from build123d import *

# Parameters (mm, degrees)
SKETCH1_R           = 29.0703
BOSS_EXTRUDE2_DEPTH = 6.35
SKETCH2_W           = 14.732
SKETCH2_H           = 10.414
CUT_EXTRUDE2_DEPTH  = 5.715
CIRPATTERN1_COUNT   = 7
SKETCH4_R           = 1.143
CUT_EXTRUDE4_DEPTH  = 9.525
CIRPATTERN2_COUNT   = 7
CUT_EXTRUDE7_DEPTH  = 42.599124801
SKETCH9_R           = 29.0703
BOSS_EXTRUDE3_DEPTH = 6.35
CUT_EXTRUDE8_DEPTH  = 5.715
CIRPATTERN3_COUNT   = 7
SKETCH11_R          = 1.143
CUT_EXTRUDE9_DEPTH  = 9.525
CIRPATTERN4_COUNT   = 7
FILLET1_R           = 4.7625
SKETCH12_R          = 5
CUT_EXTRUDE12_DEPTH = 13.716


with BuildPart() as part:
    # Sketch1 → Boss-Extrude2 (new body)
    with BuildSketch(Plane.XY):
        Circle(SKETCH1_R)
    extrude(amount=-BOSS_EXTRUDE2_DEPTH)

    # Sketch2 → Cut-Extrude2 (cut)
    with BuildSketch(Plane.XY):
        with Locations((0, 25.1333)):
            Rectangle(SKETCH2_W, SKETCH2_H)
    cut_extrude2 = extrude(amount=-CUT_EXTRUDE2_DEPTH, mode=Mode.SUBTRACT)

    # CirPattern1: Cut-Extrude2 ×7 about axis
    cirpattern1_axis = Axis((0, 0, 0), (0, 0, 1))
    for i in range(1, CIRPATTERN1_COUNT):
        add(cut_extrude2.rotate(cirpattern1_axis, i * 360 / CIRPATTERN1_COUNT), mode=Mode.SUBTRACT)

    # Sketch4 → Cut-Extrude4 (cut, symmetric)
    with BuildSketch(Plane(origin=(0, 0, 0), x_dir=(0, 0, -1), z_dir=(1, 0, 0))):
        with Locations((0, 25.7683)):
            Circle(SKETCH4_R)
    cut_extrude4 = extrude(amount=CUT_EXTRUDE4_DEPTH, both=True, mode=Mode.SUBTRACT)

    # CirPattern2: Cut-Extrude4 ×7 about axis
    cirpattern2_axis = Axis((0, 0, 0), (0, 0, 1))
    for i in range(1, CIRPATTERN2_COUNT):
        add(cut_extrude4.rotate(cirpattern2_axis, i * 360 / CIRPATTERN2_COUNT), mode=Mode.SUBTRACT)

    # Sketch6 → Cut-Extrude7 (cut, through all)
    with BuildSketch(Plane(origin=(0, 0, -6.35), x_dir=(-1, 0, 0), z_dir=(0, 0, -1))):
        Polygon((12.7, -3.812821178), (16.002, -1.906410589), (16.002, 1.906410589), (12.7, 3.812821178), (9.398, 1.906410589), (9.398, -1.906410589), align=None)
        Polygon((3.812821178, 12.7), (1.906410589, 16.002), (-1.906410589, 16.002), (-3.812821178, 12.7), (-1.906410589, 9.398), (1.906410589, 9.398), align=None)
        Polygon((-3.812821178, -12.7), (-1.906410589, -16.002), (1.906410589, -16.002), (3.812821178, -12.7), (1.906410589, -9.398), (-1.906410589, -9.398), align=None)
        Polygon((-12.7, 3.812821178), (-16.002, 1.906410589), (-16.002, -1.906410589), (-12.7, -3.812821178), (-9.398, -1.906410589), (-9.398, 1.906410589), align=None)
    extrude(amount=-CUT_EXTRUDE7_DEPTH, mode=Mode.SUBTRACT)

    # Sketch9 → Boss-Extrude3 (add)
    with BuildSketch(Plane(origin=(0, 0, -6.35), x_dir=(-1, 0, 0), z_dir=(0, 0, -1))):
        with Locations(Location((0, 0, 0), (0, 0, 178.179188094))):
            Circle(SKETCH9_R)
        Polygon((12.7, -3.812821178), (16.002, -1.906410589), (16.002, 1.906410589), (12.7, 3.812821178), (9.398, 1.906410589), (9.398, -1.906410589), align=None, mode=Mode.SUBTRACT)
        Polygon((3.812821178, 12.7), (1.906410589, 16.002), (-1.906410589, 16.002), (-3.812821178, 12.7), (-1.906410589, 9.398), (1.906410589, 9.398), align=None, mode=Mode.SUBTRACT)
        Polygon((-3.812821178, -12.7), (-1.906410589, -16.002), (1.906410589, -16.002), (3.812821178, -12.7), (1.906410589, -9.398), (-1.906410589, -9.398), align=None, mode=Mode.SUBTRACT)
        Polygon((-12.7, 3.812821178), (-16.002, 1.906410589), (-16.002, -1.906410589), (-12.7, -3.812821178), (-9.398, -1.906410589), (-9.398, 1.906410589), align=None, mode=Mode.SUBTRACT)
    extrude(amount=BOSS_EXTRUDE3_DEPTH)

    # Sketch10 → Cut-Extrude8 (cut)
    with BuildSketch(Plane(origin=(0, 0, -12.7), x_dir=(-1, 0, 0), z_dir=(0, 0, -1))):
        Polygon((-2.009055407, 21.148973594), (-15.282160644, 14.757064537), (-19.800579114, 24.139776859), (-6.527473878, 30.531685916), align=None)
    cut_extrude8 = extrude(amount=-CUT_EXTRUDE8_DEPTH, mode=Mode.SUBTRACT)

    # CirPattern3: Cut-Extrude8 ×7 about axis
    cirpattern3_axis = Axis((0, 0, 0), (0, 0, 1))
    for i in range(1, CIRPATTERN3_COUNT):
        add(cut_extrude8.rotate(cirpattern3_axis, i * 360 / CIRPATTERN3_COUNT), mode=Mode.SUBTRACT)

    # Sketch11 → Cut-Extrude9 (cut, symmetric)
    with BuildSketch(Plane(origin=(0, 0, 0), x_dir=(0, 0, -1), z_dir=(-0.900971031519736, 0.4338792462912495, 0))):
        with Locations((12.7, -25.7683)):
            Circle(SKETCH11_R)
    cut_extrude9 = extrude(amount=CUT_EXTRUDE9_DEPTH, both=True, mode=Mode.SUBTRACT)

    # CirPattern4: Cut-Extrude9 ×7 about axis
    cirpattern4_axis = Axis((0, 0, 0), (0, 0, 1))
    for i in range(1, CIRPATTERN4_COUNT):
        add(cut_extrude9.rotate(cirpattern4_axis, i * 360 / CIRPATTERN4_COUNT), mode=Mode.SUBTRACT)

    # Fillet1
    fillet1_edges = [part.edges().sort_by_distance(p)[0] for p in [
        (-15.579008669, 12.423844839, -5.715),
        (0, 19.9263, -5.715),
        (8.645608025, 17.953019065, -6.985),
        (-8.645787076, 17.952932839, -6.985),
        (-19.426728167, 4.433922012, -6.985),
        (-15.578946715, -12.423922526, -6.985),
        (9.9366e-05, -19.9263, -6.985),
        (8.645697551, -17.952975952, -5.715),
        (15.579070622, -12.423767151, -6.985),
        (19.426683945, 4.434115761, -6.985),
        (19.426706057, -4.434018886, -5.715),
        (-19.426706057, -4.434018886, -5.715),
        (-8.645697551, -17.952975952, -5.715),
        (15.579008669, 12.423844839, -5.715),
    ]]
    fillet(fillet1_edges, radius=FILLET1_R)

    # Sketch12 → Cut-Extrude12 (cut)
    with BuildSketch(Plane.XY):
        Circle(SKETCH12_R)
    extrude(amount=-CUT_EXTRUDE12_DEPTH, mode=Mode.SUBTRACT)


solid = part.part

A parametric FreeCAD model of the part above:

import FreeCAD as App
import Part
import Sketcher
from FreeCAD import Vector
Q = App.Units.Quantity


def edges_at(feature, points):
    """Names of the edges that pass closest to the given points."""
    edges = feature.Shape.Edges
    near = lambda p: min(range(len(edges)), key=lambda i: edges[i].distToShape(Part.Vertex(*p))[0])
    return sorted({f"Edge{near(p) + 1}" for p in points})


def add_polygon(sketch, points):
    """Adds a closed chain of lines whose ends are joined by coincident constraints."""
    first, n = sketch.GeometryCount, len(points)
    for a, b in zip(points, points[1:] + points[:1]):
        sketch.addGeometry(Part.LineSegment(App.Vector(*a, 0), App.Vector(*b, 0)), False)
    for i in range(n):
        sketch.addConstraint(Sketcher.Constraint("Coincident", first + i, 2, first + (i + 1) % n, 1))

doc = App.newDocument("Part")
body = doc.addObject("PartDesign::Body", "Body")

# Sketch on XY plane
sketch1 = body.newObject("Sketcher::SketchObject", "Sketch")
sketch1.AttachmentSupport = (doc.getObject("XY_Plane"), [""])
sketch1.MapMode = "FlatFace"
sketch1.addGeometry(Part.Circle(Vector(0, 0, 0), Vector(0, 0, 1), 29), False)
sketch1.addConstraint([
    Sketcher.Constraint("Coincident", 0, 3, -1, 1),
    Sketcher.Constraint("Diameter", 0, Q("2.289 in")),
])
pad1 = body.newObject("PartDesign::Pad", "Pad")
pad1.Profile = sketch1
pad1.Length = Q("0.25 in")
pad1.Reversed = True

# Sketch on XY plane
sketch2 = body.newObject("Sketcher::SketchObject", "Sketch001")
sketch2.AttachmentSupport = (doc.getObject("XY_Plane"), [""])
sketch2.MapMode = "FlatFace"
add_polygon(sketch2, [(-7, 30), (-7, 20), (7, 20), (7, 30)])  # lines 0-3
sketch2.addConstraint([
    Sketcher.Constraint("Vertical", 0),
    Sketcher.Constraint("Horizontal", 1),
    Sketcher.Constraint("Vertical", 2),
    Sketcher.Constraint("Horizontal", 3),
    Sketcher.Constraint("DistanceX", 1, 1, 1, 2, Q("0.58 in")),
    Sketcher.Constraint("DistanceY", 0, 2, 0, 1, Q("0.41 in")),
    Sketcher.Constraint("DistanceX", 0, 2, -1, 1, Q("0.29 in")),
    Sketcher.Constraint("DistanceY", -1, 1, 0, 2, Q("0.7845 in")),
])
pocket1 = body.newObject("PartDesign::Pocket", "Pocket")
pocket1.Profile = sketch2
pocket1.Length = Q("0.225 in")
doc.recompute()

polarpattern = body.newObject("PartDesign::PolarPattern", "PolarPattern")
polarpattern.Originals = [pocket1]
polarpattern.Axis = (doc.getObject("Z_Axis"), [""])
polarpattern.Angle = 360
polarpattern.Occurrences = 7
body.Tip = polarpattern

# Sketch on YZ plane
sketch3 = body.newObject("Sketcher::SketchObject", "Sketch002")
sketch3.AttachmentSupport = (doc.getObject("YZ_Plane"), [""])
sketch3.MapMode = "FlatFace"
sketch3.addGeometry(Part.Circle(Vector(25.8, 0, 0), Vector(0, 0, 1), 1.1), False)
sketch3.addConstraint([
    Sketcher.Constraint("PointOnObject", 0, 3, -1),
    Sketcher.Constraint("Diameter", 0, Q("0.09 in")),
    Sketcher.Constraint("DistanceX", -1, 1, 0, 3, Q("1.0145 in")),
])
pocket2 = body.newObject("PartDesign::Pocket", "Pocket001")
pocket2.Profile = sketch3
pocket2.Length = Q("0.75 in")
pocket2.Midplane = True
doc.recompute()

polarpattern2 = body.newObject("PartDesign::PolarPattern", "PolarPattern001")
polarpattern2.Originals = [pocket2]
polarpattern2.Axis = (doc.getObject("Z_Axis"), [""])
polarpattern2.Angle = 360
polarpattern2.Occurrences = 7
body.Tip = polarpattern2

# Sketch on XY plane
sketch4 = body.newObject("Sketcher::SketchObject", "Sketch003")
sketch4.AttachmentSupport = (doc.getObject("XY_Plane"), [""])
sketch4.MapMode = "FlatFace"
sketch4.AttachmentOffset = App.Placement(Vector(0, 0, -0.25 * 25.4), App.Rotation())
add_polygon(sketch4, [(-12.7, -3.8), (-16, -1.9), (-16, 1.9), (-12.7, 3.8), (-9.4, 1.9), (-9.4, -1.9)])  # lines 0-5
add_polygon(sketch4, [(-3.8, 12.7), (-1.9, 16), (1.9, 16), (3.8, 12.7), (1.9, 9.4), (-1.9, 9.4)])  # lines 6-11
add_polygon(sketch4, [(3.8, -12.7), (1.9, -16), (-1.9, -16), (-3.8, -12.7), (-1.9, -9.4), (1.9, -9.4)])  # lines 12-17
add_polygon(sketch4, [(12.7, 3.8), (16, 1.9), (16, -1.9), (12.7, -3.8), (9.4, -1.9), (9.4, 1.9)])  # lines 18-23
sketch4.addConstraint([
    Sketcher.Constraint("Vertical", 1),
    Sketcher.Constraint("Vertical", 4),
    Sketcher.Constraint("Horizontal", 7),
    Sketcher.Constraint("Horizontal", 10),
    Sketcher.Constraint("Horizontal", 13),
    Sketcher.Constraint("Horizontal", 16),
    Sketcher.Constraint("Vertical", 19),
    Sketcher.Constraint("Vertical", 22),
    Sketcher.Constraint("Symmetric", 6, 2, 12, 2, -1, 1),
    Sketcher.Constraint("Symmetric", 8, 2, 14, 2, -1, 1),
    Sketcher.Constraint("Symmetric", 9, 2, 15, 2, -1, 1),
    Sketcher.Constraint("Symmetric", 11, 2, 17, 2, -1, 1),
    Sketcher.Constraint("Symmetric", 0, 2, 18, 2, -1, 1),
    Sketcher.Constraint("Symmetric", 2, 2, 20, 2, -1, 1),
    Sketcher.Constraint("Symmetric", 3, 2, 21, 2, -1, 1),
    Sketcher.Constraint("Symmetric", 5, 2, 23, 2, -1, 1),
    Sketcher.Constraint("Symmetric", 8, 2, 11, 2, -2),
    Sketcher.Constraint("Symmetric", 5, 2, 20, 2, -2),
    Sketcher.Constraint("Parallel", 0, 3),
    Sketcher.Constraint("Parallel", 2, 5),
    Sketcher.Constraint("Perpendicular", 3, 6),
    Sketcher.Constraint("Perpendicular", 5, 8),
    Sketcher.Constraint("Parallel", 6, 9),
    Sketcher.Constraint("Parallel", 8, 11),
    Sketcher.Constraint("Parallel", 11, 14),
    Sketcher.Constraint("Parallel", 14, 17),
    Sketcher.Constraint("Perpendicular", 17, 20),
    Sketcher.Constraint("Parallel", 20, 23),
    Sketcher.Constraint("Horizontal", 1, 2, 3, 2),
    Sketcher.Constraint("Horizontal", 0, 2, 4, 2),
    Sketcher.Constraint("Vertical", 7, 2, 9, 2),
    Sketcher.Constraint("Equal", 16, 1),
    Sketcher.Constraint("Equal", 5, 6),
    Sketcher.Constraint("Angle", 0, Q("150 deg")),
    Sketcher.Constraint("DistanceX", 2, 2, -1, 1, Q("0.5 in")),
    Sketcher.Constraint("DistanceY", -1, 1, 8, 2, Q("0.5 in")),
    Sketcher.Constraint("DistanceX", 0, 2, -1, 1, Q("0.63 in")),
    Sketcher.Constraint("DistanceX", 7, 1, 7, 2, 3.812821),
])
pocket3 = body.newObject("PartDesign::Pocket", "Pocket002")
pocket3.Profile = sketch4
pocket3.Type = "ThroughAll"
pocket3.Reversed = True

# Sketch on XY plane
sketch5 = body.newObject("Sketcher::SketchObject", "Sketch004")
sketch5.AttachmentSupport = (doc.getObject("XY_Plane"), [""])
sketch5.MapMode = "FlatFace"
sketch5.AttachmentOffset = App.Placement(Vector(0, 0, -0.25 * 25.4), App.Rotation())
sketch5.addGeometry(Part.Circle(Vector(0, 0, 0), Vector(0, 0, 1), 29.1), False)  # 0
add_polygon(sketch5, [(-16, -1.9), (-12.7, -3.8), (-9.4, -1.9), (-9.4, 1.9), (-12.7, 3.8), (-16, 1.9)])  # lines 1-6
add_polygon(sketch5, [(-1.9, 16), (-3.8, 12.7), (-1.9, 9.4), (1.9, 9.4), (3.8, 12.7), (1.9, 16)])  # lines 7-12
add_polygon(sketch5, [(1.9, -16), (3.8, -12.7), (1.9, -9.4), (-1.9, -9.4), (-3.8, -12.7), (-1.9, -16)])  # lines 13-18
add_polygon(sketch5, [(16, 1.9), (12.7, 3.8), (9.4, 1.9), (9.4, -1.9), (12.7, -3.8), (16, -1.9)])  # lines 19-24
sketch5.addConstraint([
    Sketcher.Constraint("Vertical", 3),
    Sketcher.Constraint("Vertical", 6),
    Sketcher.Constraint("Horizontal", 9),
    Sketcher.Constraint("Horizontal", 12),
    Sketcher.Constraint("Horizontal", 15),
    Sketcher.Constraint("Horizontal", 18),
    Sketcher.Constraint("Vertical", 21),
    Sketcher.Constraint("Vertical", 24),
    Sketcher.Constraint("Coincident", 0, 3, -1, 1),
    Sketcher.Constraint("Symmetric", 7, 2, 13, 2, -1, 1),
    Sketcher.Constraint("Symmetric", 8, 2, 14, 2, -1, 1),
    Sketcher.Constraint("Symmetric", 10, 2, 16, 2, -1, 1),
    Sketcher.Constraint("Symmetric", 11, 2, 17, 2, -1, 1),
    Sketcher.Constraint("Symmetric", 1, 2, 19, 2, -1, 1),
    Sketcher.Constraint("Symmetric", 2, 2, 20, 2, -1, 1),
    Sketcher.Constraint("Symmetric", 4, 2, 22, 2, -1, 1),
    Sketcher.Constraint("Symmetric", 5, 2, 23, 2, -1, 1),
    Sketcher.Constraint("Symmetric", 7, 2, 10, 2, -2),
    Sketcher.Constraint("Symmetric", 4, 2, 19, 2, -2),
    Sketcher.Constraint("Parallel", 1, 4),
    Sketcher.Constraint("Parallel", 2, 5),
    Sketcher.Constraint("Perpendicular", 4, 7),
    Sketcher.Constraint("Perpendicular", 5, 8),
    Sketcher.Constraint("Parallel", 7, 10),
    Sketcher.Constraint("Parallel", 8, 11),
    Sketcher.Constraint("Parallel", 10, 13),
    Sketcher.Constraint("Parallel", 13, 16),
    Sketcher.Constraint("Perpendicular", 16, 19),
    Sketcher.Constraint("Parallel", 19, 22),
    Sketcher.Constraint("Horizontal", 3, 2, 5, 2),
    Sketcher.Constraint("Horizontal", 2, 2, 6, 2),
    Sketcher.Constraint("Vertical", 9, 2, 11, 2),
    Sketcher.Constraint("Equal", 18, 3),
    Sketcher.Constraint("Equal", 5, 7),
    Sketcher.Constraint("Diameter", 0, Q("2.289 in")),
    Sketcher.Constraint("Angle", 1, Q("-30 deg")),
    Sketcher.Constraint("DistanceX", 1, 2, -1, 1, Q("0.5 in")),
    Sketcher.Constraint("DistanceY", -1, 1, 7, 2, Q("0.5 in")),
    Sketcher.Constraint("DistanceX", 2, 2, -1, 1, Q("0.37 in")),
    Sketcher.Constraint("DistanceX", 9, 1, 9, 2, 3.812821),
])
pad2 = body.newObject("PartDesign::Pad", "Pad001")
pad2.Profile = sketch5
pad2.Length = Q("0.25 in")
pad2.Reversed = True

# Sketch on XY plane
sketch6 = body.newObject("Sketcher::SketchObject", "Sketch005")
sketch6.AttachmentSupport = (doc.getObject("XY_Plane"), [""])
sketch6.MapMode = "FlatFace"
sketch6.AttachmentOffset = App.Placement(Vector(0, 0, -0.5 * 25.4), App.Rotation())
add_polygon(sketch6, [(15, 15), (2, 21), (7, 31), (20, 24)])  # lines 0-3
sketch6.addConstraint([
    Sketcher.Constraint("Perpendicular", 0, 1),
    Sketcher.Constraint("Perpendicular", 1, 2),
    Sketcher.Constraint("Perpendicular", 2, 3),
    Sketcher.Constraint("Distance", 0, Q("0.58 in")),
    Sketcher.Constraint("Distance", 1, Q("0.41 in")),
    Sketcher.Constraint("DistanceX", -1, 1, 2, 2, 19.800579),
    Sketcher.Constraint("DistanceX", -1, 1, 3, 2, 15.282161),
    Sketcher.Constraint("DistanceY", -1, 1, 0, 2, 21.148974),
])
pocket4 = body.newObject("PartDesign::Pocket", "Pocket003")
pocket4.Profile = sketch6
pocket4.Length = Q("0.225 in")
pocket4.Reversed = True
doc.recompute()

polarpattern3 = body.newObject("PartDesign::PolarPattern", "PolarPattern002")
polarpattern3.Originals = [pocket4]
polarpattern3.Axis = (doc.getObject("Z_Axis"), [""])
polarpattern3.Angle = 360
polarpattern3.Occurrences = 7
body.Tip = polarpattern3

# Sketch on an angled plane
sketch7 = body.newObject("Sketcher::SketchObject", "Sketch006")
sketch7.Placement = App.Placement(Vector(0, 0, 0), App.Rotation(Vector(0, 0, -1), Vector(-0.433879246, -0.900971032, 0), Vector(-0.900971032, 0.433879246, 0), "ZXY"))
sketch7.addGeometry(Part.Circle(Vector(12.7, -25.8, 0), Vector(0, 0, 1), 1.1), False)
sketch7.addConstraint([
    Sketcher.Constraint("Diameter", 0, Q("0.09 in")),
    Sketcher.Constraint("DistanceX", -1, 1, 0, 3, Q("0.5 in")),
    Sketcher.Constraint("DistanceY", 0, 3, -1, 1, Q("1.0145 in")),
])
pocket5 = body.newObject("PartDesign::Pocket", "Pocket004")
pocket5.Profile = sketch7
pocket5.Length = Q("0.75 in")
pocket5.Midplane = True
doc.recompute()

polarpattern4 = body.newObject("PartDesign::PolarPattern", "PolarPattern003")
polarpattern4.Originals = [pocket5]
polarpattern4.Axis = (doc.getObject("Z_Axis"), [""])
polarpattern4.Angle = 360
polarpattern4.Occurrences = 7
body.Tip = polarpattern4
doc.recompute()

fillet = body.newObject("PartDesign::Fillet", "Fillet")
fillet.Base = (polarpattern4, edges_at(polarpattern4, [
    (-15.579, 12.424, -5.715),
    (0, 19.926, -5.715),
    (8.646, 17.953, -6.985),
    (-8.646, 17.953, -6.985),
    (-19.427, 4.434, -6.985),
    (-15.579, -12.424, -6.985),
    (0, -19.926, -6.985),
    (8.646, -17.953, -5.715),
    (15.579, -12.424, -6.985),
    (19.427, 4.434, -6.985),
    (19.427, -4.434, -5.715),
    (-19.427, -4.434, -5.715),
    (-8.646, -17.953, -5.715),
    (15.579, 12.424, -5.715),
]))
fillet.Radius = Q("0.1875 in")

# Sketch on XY plane
sketch8 = body.newObject("Sketcher::SketchObject", "Sketch007")
sketch8.AttachmentSupport = (doc.getObject("XY_Plane"), [""])
sketch8.MapMode = "FlatFace"
sketch8.addGeometry(Part.Circle(Vector(0, 0, 0), Vector(0, 0, 1), 5), False)
sketch8.addConstraint([
    Sketcher.Constraint("Coincident", 0, 3, -1, 1),
    Sketcher.Constraint("Diameter", 0, 10.0),
])
pocket6 = body.newObject("PartDesign::Pocket", "Pocket005")
pocket6.Profile = sketch8
pocket6.Length = Q("0.54 in")

doc.recompute()
